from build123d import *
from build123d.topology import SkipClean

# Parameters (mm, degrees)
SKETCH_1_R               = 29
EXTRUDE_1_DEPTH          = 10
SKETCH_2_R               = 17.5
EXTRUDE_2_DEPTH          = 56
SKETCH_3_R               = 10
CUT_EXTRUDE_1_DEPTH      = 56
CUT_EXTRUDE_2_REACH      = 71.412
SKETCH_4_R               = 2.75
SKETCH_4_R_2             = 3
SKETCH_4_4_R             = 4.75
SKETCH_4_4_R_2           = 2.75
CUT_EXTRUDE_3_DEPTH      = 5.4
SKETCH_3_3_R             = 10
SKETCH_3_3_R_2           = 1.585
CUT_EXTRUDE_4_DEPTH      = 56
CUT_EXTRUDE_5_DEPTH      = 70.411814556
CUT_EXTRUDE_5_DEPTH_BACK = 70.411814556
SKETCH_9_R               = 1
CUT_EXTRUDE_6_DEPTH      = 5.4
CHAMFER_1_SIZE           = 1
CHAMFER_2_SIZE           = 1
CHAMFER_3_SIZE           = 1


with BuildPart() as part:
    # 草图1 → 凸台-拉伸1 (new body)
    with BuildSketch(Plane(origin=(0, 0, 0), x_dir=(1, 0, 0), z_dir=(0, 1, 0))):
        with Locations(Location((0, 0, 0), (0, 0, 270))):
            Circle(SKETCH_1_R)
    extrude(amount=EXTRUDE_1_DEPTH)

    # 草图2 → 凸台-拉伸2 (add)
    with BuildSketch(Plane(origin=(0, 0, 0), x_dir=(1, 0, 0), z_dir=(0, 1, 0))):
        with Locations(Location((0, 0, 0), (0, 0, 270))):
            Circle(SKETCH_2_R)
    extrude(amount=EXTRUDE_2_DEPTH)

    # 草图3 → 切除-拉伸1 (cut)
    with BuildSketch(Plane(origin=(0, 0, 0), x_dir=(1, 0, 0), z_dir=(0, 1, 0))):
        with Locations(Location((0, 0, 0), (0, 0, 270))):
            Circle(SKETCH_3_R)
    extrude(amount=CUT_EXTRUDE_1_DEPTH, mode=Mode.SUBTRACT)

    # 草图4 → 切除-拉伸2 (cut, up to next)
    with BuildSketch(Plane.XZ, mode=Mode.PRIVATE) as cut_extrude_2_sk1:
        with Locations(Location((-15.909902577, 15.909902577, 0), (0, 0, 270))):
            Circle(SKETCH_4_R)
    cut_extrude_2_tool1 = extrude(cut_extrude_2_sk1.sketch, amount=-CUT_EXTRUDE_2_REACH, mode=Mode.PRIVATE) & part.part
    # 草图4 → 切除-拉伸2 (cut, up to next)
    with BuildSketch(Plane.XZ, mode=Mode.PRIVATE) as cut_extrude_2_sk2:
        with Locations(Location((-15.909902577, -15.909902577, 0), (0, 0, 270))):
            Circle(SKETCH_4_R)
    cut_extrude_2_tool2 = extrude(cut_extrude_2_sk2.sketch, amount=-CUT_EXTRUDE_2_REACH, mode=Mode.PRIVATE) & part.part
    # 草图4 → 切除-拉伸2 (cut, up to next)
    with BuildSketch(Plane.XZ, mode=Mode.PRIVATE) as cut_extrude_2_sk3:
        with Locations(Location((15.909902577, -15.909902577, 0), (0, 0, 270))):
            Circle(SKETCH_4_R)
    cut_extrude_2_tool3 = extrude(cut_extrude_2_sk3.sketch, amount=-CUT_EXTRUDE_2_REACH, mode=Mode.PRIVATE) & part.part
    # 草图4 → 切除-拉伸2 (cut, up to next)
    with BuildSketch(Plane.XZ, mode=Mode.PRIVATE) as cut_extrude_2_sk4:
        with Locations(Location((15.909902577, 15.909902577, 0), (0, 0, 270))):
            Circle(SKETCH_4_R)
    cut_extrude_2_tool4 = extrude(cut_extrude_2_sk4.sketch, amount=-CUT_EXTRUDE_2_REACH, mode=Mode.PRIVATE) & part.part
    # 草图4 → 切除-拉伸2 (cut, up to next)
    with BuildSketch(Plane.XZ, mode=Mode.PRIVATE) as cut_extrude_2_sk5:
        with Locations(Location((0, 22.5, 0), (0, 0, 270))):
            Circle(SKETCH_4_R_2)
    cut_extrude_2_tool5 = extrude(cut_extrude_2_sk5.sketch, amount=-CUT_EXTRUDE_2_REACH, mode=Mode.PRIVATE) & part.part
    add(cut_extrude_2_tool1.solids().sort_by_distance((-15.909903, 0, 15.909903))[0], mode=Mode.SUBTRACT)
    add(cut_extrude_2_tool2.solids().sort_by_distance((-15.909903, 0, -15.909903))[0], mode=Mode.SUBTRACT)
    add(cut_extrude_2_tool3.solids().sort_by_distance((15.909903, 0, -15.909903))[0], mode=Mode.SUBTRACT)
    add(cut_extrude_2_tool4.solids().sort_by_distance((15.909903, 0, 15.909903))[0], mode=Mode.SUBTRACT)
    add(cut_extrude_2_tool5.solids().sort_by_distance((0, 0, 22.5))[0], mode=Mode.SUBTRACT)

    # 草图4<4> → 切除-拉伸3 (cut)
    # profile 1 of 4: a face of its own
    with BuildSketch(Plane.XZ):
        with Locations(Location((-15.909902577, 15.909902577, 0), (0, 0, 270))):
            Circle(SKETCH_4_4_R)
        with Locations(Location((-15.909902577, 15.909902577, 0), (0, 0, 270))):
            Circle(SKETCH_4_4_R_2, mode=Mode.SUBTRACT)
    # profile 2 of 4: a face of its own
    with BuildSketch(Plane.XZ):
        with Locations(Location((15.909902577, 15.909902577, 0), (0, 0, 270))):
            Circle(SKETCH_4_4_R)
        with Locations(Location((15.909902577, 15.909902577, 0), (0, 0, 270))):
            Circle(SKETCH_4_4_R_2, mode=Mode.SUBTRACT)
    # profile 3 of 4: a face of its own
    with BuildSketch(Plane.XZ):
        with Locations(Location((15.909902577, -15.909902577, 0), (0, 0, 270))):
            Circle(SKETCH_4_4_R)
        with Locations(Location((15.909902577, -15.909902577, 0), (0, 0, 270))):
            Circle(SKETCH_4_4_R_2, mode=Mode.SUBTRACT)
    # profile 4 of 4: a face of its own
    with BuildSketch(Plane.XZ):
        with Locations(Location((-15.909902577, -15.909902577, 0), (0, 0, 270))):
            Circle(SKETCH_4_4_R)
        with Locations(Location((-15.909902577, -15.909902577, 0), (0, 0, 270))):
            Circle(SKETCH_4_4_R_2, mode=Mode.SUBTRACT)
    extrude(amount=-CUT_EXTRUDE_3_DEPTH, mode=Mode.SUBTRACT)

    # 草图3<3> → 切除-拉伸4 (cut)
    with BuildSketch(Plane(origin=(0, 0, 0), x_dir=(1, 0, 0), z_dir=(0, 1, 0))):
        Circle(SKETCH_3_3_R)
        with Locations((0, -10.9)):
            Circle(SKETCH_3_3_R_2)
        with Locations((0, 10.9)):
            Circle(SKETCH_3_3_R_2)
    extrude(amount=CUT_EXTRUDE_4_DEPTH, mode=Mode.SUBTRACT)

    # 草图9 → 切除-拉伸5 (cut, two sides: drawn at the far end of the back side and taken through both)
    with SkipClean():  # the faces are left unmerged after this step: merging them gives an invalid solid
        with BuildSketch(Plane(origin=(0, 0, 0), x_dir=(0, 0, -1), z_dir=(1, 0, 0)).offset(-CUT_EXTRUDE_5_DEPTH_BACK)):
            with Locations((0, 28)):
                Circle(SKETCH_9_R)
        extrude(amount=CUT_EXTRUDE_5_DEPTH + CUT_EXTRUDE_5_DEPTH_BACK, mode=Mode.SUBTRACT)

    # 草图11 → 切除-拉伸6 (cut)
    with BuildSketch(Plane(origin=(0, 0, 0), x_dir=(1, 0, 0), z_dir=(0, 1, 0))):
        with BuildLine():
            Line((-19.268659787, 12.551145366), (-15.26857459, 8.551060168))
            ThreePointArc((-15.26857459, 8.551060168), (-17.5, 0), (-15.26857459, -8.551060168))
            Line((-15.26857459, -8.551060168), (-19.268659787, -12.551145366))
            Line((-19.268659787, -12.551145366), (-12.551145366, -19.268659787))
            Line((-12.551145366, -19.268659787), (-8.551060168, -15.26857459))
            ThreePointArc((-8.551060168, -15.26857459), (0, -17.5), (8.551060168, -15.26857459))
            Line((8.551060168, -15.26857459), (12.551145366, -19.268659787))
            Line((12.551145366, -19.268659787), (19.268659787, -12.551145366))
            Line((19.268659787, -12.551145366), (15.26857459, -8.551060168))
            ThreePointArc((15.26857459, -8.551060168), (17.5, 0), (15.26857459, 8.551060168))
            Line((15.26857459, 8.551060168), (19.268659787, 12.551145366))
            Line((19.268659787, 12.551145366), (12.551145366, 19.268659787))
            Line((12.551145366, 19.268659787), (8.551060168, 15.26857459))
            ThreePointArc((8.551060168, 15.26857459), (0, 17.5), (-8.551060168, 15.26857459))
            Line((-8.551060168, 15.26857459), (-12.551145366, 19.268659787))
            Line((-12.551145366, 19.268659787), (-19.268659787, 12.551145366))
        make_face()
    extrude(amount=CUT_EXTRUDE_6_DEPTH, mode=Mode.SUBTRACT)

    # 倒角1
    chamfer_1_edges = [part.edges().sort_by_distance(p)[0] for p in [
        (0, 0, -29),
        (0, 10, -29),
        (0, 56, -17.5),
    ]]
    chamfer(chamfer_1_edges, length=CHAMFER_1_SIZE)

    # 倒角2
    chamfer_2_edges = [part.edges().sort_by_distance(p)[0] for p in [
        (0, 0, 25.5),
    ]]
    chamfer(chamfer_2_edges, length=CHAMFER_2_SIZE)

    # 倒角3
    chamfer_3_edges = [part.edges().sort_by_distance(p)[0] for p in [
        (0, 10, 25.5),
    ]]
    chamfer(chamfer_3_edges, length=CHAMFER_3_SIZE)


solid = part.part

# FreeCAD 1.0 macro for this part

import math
import FreeCAD as App
import Part
import Sketcher

V = App.Vector


def edges_at(feature, points):
    """Names of the edges that pass closest to the given points."""
    edges = feature.Shape.Edges
    near = lambda p: min(range(len(edges)), key=lambda i: edges[i].distToShape(Part.Vertex(*p))[0])
    return sorted({f"Edge{near(p) + 1}" for p in points})

doc = App.newDocument("Part")
body = doc.addObject("PartDesign::Body", "Body")

# Sketch on XZ plane
sketch1 = body.newObject("Sketcher::SketchObject", "Sketch")
sketch1.AttachmentSupport = (doc.getObject("XZ_Plane"), [""])
sketch1.MapMode = "FlatFace"
sketch1.addGeometry(Part.Circle(V(0, 0, 0), V(0, 0, 1), 29), False)
sketch1.addConstraint([
    Sketcher.Constraint("Coincident", 0, 3, -1, 1),
    Sketcher.Constraint("Diameter", 0, 58.0),
])
pad1 = body.newObject("PartDesign::Pad", "Pad")
pad1.Profile = sketch1
pad1.Length = 10
pad1.Reversed = True

# Sketch on XZ plane
sketch2 = body.newObject("Sketcher::SketchObject", "Sketch001")
sketch2.AttachmentSupport = (doc.getObject("XZ_Plane"), [""])
sketch2.MapMode = "FlatFace"
sketch2.addGeometry(Part.Circle(V(0, 0, 0), V(0, 0, 1), 18), False)
sketch2.addConstraint([
    Sketcher.Constraint("Coincident", 0, 3, -1, 1),
    Sketcher.Constraint("Diameter", 0, 35.0),
])
pad2 = body.newObject("PartDesign::Pad", "Pad001")
pad2.Profile = sketch2
pad2.Length = 56
pad2.Reversed = True

# Sketch on XZ plane
sketch3 = body.newObject("Sketcher::SketchObject", "Sketch002")
sketch3.AttachmentSupport = (doc.getObject("XZ_Plane"), [""])
sketch3.MapMode = "FlatFace"
sketch3.addGeometry(Part.Circle(V(0, 0, 0), V(0, 0, 1), 10), False)
sketch3.addConstraint([
    Sketcher.Constraint("Coincident", 0, 3, -1, 1),
    Sketcher.Constraint("Diameter", 0, 20.0),
])
pocket1 = body.newObject("PartDesign::Pocket", "Pocket")
pocket1.Profile = sketch3
pocket1.Length = 56

# Sketch on XZ plane
sketch4 = body.newObject("Sketcher::SketchObject", "Sketch003")
sketch4.AttachmentSupport = (doc.getObject("XZ_Plane"), [""])
sketch4.MapMode = "FlatFace"
sketch4.addGeometry(Part.Circle(V(-15.9, 15.9, 0), V(0, 0, 1), 2.8), False)
sketch4.addConstraint([
    Sketcher.Constraint("Diameter", 0, 5.5),
    Sketcher.Constraint("DistanceX", 0, 3, -1, 1, 15.909903),
    Sketcher.Constraint("DistanceY", -1, 1, 0, 3, 15.909903),
])
pocket2 = body.newObject("PartDesign::Pocket", "Pocket001")
pocket2.Profile = sketch4
pocket2.Type = "UpToFirst"

# Sketch on XZ plane
sketch5 = body.newObject("Sketcher::SketchObject", "Sketch004")
sketch5.AttachmentSupport = (doc.getObject("XZ_Plane"), [""])
sketch5.MapMode = "FlatFace"
sketch5.addGeometry(Part.Circle(V(-15.9, -15.9, 0), V(0, 0, 1), 2.8), False)
sketch5.addConstraint([
    Sketcher.Constraint("Diameter", 0, 5.5),
    Sketcher.Constraint("DistanceX", 0, 3, -1, 1, 15.909903),
    Sketcher.Constraint("DistanceY", 0, 3, -1, 1, 15.909903),
])
pocket3 = body.newObject("PartDesign::Pocket", "Pocket002")
pocket3.Profile = sketch5
pocket3.Type = "UpToFirst"

# Sketch on XZ plane
sketch6 = body.newObject("Sketcher::SketchObject", "Sketch005")
sketch6.AttachmentSupport = (doc.getObject("XZ_Plane"), [""])
sketch6.MapMode = "FlatFace"
sketch6.addGeometry(Part.Circle(V(15.9, -15.9, 0), V(0, 0, 1), 2.8), False)
sketch6.addConstraint([
    Sketcher.Constraint("Diameter", 0, 5.5),
    Sketcher.Constraint("DistanceX", -1, 1, 0, 3, 15.909903),
    Sketcher.Constraint("DistanceY", 0, 3, -1, 1, 15.909903),
])
pocket4 = body.newObject("PartDesign::Pocket", "Pocket003")
pocket4.Profile = sketch6
pocket4.Type = "UpToFirst"

# Sketch on XZ plane
sketch7 = body.newObject("Sketcher::SketchObject", "Sketch006")
sketch7.AttachmentSupport = (doc.getObject("XZ_Plane"), [""])
sketch7.MapMode = "FlatFace"
sketch7.addGeometry(Part.Circle(V(15.9, 15.9, 0), V(0, 0, 1), 2.8), False)
sketch7.addConstraint([
    Sketcher.Constraint("Diameter", 0, 5.5),
    Sketcher.Constraint("DistanceX", -1, 1, 0, 3, 15.909903),
    Sketcher.Constraint("DistanceY", -1, 1, 0, 3, 15.909903),
])
pocket5 = body.newObject("PartDesign::Pocket", "Pocket004")
pocket5.Profile = sketch7
pocket5.Type = "UpToFirst"

# Sketch on XZ plane
sketch8 = body.newObject("Sketcher::SketchObject", "Sketch007")
sketch8.AttachmentSupport = (doc.getObject("XZ_Plane"), [""])
sketch8.MapMode = "FlatFace"
sketch8.addGeometry(Part.Circle(V(0, 22.5, 0), V(0, 0, 1), 3), False)
sketch8.addConstraint([
    Sketcher.Constraint("PointOnObject", 0, 3, -2),
    Sketcher.Constraint("Diameter", 0, 6.0),
    Sketcher.Constraint("DistanceY", -1, 1, 0, 3, 22.5),
])
pocket6 = body.newObject("PartDesign::Pocket", "Pocket005")
pocket6.Profile = sketch8
pocket6.Type = "UpToFirst"

# Sketch on XZ plane
sketch9 = body.newObject("Sketcher::SketchObject", "Sketch008")
sketch9.AttachmentSupport = (doc.getObject("XZ_Plane"), [""])
sketch9.MapMode = "FlatFace"
sketch9.addGeometry([
    Part.Circle(V(-15.9, 15.9, 0), V(0, 0, 1), 4.8),  # 0
    Part.Circle(V(-15.9, 15.9, 0), V(0, 0, 1), 2.8),  # 1
    Part.Circle(V(15.9, 15.9, 0), V(0, 0, 1), 4.8),  # 2
    Part.Circle(V(15.9, 15.9, 0), V(0, 0, 1), 2.8),  # 3
    Part.Circle(V(15.9, -15.9, 0), V(0, 0, 1), 4.8),  # 4
    Part.Circle(V(15.9, -15.9, 0), V(0, 0, 1), 2.8),  # 5
    Part.Circle(V(-15.9, -15.9, 0), V(0, 0, 1), 4.8),  # 6
    Part.Circle(V(-15.9, -15.9, 0), V(0, 0, 1), 2.8),  # 7
], False)
sketch9.addConstraint([
    Sketcher.Constraint("Coincident", 1, 3, 0, 3),
    Sketcher.Constraint("Coincident", 3, 3, 2, 3),
    Sketcher.Constraint("Coincident", 5, 3, 4, 3),
    Sketcher.Constraint("Coincident", 7, 3, 6, 3),
    Sketcher.Constraint("Equal", 0, 2),
    Sketcher.Constraint("Equal", 1, 3),
    Sketcher.Constraint("Equal", 2, 4),
    Sketcher.Constraint("Equal", 3, 5),
    Sketcher.Constraint("Equal", 4, 6),
    Sketcher.Constraint("Equal", 5, 7),
    Sketcher.Constraint("Symmetric", 0, 3, 4, 3, -1, 1),
    Sketcher.Constraint("Symmetric", 2, 3, 6, 3, -1, 1),
    Sketcher.Constraint("Symmetric", 0, 3, 2, 3, -2),
    Sketcher.Constraint("Diameter", 0, 9.5),
    Sketcher.Constraint("Diameter", 1, 5.5),
    Sketcher.Constraint("DistanceX", 0, 3, -1, 1, 15.909903),
    Sketcher.Constraint("DistanceY", -1, 1, 0, 3, 15.909903),
])
pocket7 = body.newObject("PartDesign::Pocket", "Pocket006")
pocket7.Profile = sketch9
pocket7.Length = 5.4

# Sketch on XZ plane
sketch10 = body.newObject("Sketcher::SketchObject", "Sketch009")
sketch10.AttachmentSupport = (doc.getObject("XZ_Plane"), [""])
sketch10.MapMode = "FlatFace"
sketch10.addGeometry([
    Part.ArcOfCircle(Part.Circle(V(0, 10.9, 0), V(0, 0, 1), 1.6), math.radians(-38), math.radians(218)),
    Part.ArcOfCircle(Part.Circle(V(0, 0, 0), V(0, 0, 1), 10), math.radians(-83), math.radians(83)),
    Part.ArcOfCircle(Part.Circle(V(0, -10.9, 0), V(0, 0, 1), 1.6), math.radians(142), math.radians(398)),
    Part.ArcOfCircle(Part.Circle(V(0, 0, 0), V(0, 0, 1), 10), math.radians(97), math.radians(263)),
], False)
sketch10.addConstraint([
    Sketcher.Constraint("Coincident", 0, 1, 1, 2),
    Sketcher.Constraint("Coincident", 1, 1, 2, 2),
    Sketcher.Constraint("Coincident", 2, 1, 3, 2),
    Sketcher.Constraint("Coincident", 3, 1, 0, 2),
    Sketcher.Constraint("Coincident", 1, 3, -1, 1),
    Sketcher.Constraint("Coincident", 3, 3, -1, 1),
    Sketcher.Constraint("Equal", 0, 2),
    Sketcher.Constraint("Equal", 1, 3),
    Sketcher.Constraint("Symmetric", 0, 3, 2, 3, -1, 1),
    Sketcher.Constraint("PointOnObject", 0, 3, -2),
    Sketcher.Constraint("Radius", 1, 10.0),
    Sketcher.Constraint("Radius", 0, 1.585),
    Sketcher.Constraint("DistanceY", -1, 1, 0, 3, 10.9),
])
pocket8 = body.newObject("PartDesign::Pocket", "Pocket007")
pocket8.Profile = sketch10
pocket8.Length = 56

# Sketch on YZ plane
sketch11 = body.newObject("Sketcher::SketchObject", "Sketch010")
sketch11.AttachmentSupport = (doc.getObject("YZ_Plane"), [""])
sketch11.MapMode = "FlatFace"
sketch11.addGeometry(Part.Circle(V(28, 0, 0), V(0, 0, 1), 1), False)
sketch11.addConstraint([
    Sketcher.Constraint("PointOnObject", 0, 3, -1),
    Sketcher.Constraint("Diameter", 0, 2.0),
    Sketcher.Constraint("DistanceX", -1, 1, 0, 3, 28.0),
])
pocket9 = body.newObject("PartDesign::Pocket", "Pocket008")
pocket9.Profile = sketch11
pocket9.Type = "ThroughAll"
pocket9.Midplane = True

# Sketch on XZ plane
sketch12 = body.newObject("Sketcher::SketchObject", "Sketch011")
sketch12.AttachmentSupport = (doc.getObject("XZ_Plane"), [""])
sketch12.MapMode = "FlatFace"
sketch12.addGeometry([
    Part.LineSegment(V(-19, -13, 0), V(-15, -9, 0)),  # 0
    Part.ArcOfCircle(Part.Circle(V(0, 0, 0), V(0, 0, 1), 18), math.radians(151), math.radians(209)),  # 1
    Part.LineSegment(V(-15, 9, 0), V(-19, 13, 0)),  # 2
    Part.LineSegment(V(-19, 13, 0), V(-13, 19, 0)),  # 3
    Part.LineSegment(V(-13, 19, 0), V(-9, 15, 0)),  # 4
    Part.ArcOfCircle(Part.Circle(V(0, 0, 0), V(0, 0, 1), 18), math.radians(61), math.radians(119)),  # 5
    Part.LineSegment(V(9, 15, 0), V(13, 19, 0)),  # 6
    Part.LineSegment(V(13, 19, 0), V(19, 13, 0)),  # 7
    Part.LineSegment(V(19, 13, 0), V(15, 9, 0)),  # 8
    Part.ArcOfCircle(Part.Circle(V(0, 0, 0), V(0, 0, 1), 18), math.radians(-29), math.radians(29)),  # 9
    Part.LineSegment(V(15, -9, 0), V(19, -13, 0)),  # 10
    Part.LineSegment(V(19, -13, 0), V(13, -19, 0)),  # 11
    Part.LineSegment(V(13, -19, 0), V(9, -15, 0)),  # 12
    Part.ArcOfCircle(Part.Circle(V(0, 0, 0), V(0, 0, 1), 18), math.radians(-119), math.radians(-61)),  # 13
    Part.LineSegment(V(-9, -15, 0), V(-13, -19, 0)),  # 14
    Part.LineSegment(V(-13, -19, 0), V(-19, -13, 0)),  # 15
], False)
sketch12.addConstraint([
    Sketcher.Constraint("Coincident", 0, 2, 1, 2),
    Sketcher.Constraint("Coincident", 1, 1, 2, 1),
    Sketcher.Constraint("Coincident", 2, 2, 3, 1),
    Sketcher.Constraint("Coincident", 3, 2, 4, 1),
    Sketcher.Constraint("Coincident", 4, 2, 5, 2),
    Sketcher.Constraint("Coincident", 5, 1, 6, 1),
    Sketcher.Constraint("Coincident", 6, 2, 7, 1),
    Sketcher.Constraint("Coincident", 7, 2, 8, 1),
    Sketcher.Constraint("Coincident", 8, 2, 9, 2),
    Sketcher.Constraint("Coincident", 9, 1, 10, 1),
    Sketcher.Constraint("Coincident", 10, 2, 11, 1),
    Sketcher.Constraint("Coincident", 11, 2, 12, 1),
    Sketcher.Constraint("Coincident", 12, 2, 13, 2),
    Sketcher.Constraint("Coincident", 13, 1, 14, 1),
    Sketcher.Constraint("Coincident", 14, 2, 15, 1),
    Sketcher.Constraint("Coincident", 15, 2, 0, 1),
    Sketcher.Constraint("Coincident", 1, 3, -1, 1),
    Sketcher.Constraint("Coincident", 5, 3, -1, 1),
    Sketcher.Constraint("Coincident", 9, 3, -1, 1),
    Sketcher.Constraint("Coincident", 13, 3, -1, 1),
    Sketcher.Constraint("Equal", 1, 5),
    Sketcher.Constraint("Equal", 5, 9),
    Sketcher.Constraint("Equal", 9, 13),
    Sketcher.Constraint("Symmetric", 2, 2, 10, 2, -1, 1),
    Sketcher.Constraint("Symmetric", 3, 2, 11, 2, -1, 1),
    Sketcher.Constraint("Symmetric", 6, 2, 14, 2, -1, 1),
    Sketcher.Constraint("Symmetric", 7, 2, 15, 2, -1, 1),
    Sketcher.Constraint("Symmetric", 3, 2, 6, 2, -2),
    Sketcher.Constraint("Symmetric", 2, 2, 7, 2, -2),
    Sketcher.Constraint("Perpendicular", 0, 2),
    Sketcher.Constraint("Perpendicular", 2, 3),
    Sketcher.Constraint("Perpendicular", 3, 4),
    Sketcher.Constraint("Perpendicular", 4, 6),
    Sketcher.Constraint("Perpendicular", 6, 7),
    Sketcher.Constraint("Perpendicular", 7, 8),
    Sketcher.Constraint("Perpendicular", 8, 10),
    Sketcher.Constraint("Perpendicular", 11, 12),
    Sketcher.Constraint("Perpendicular", 12, 14),
    Sketcher.Constraint("Equal", 2, 4),
    Sketcher.Constraint("Radius", 1, 17.5),
    Sketcher.Constraint("Distance", 3, 9.5),
    Sketcher.Constraint("DistanceY", 1, 1, 3, 2, 10.7176),
])
pocket10 = body.newObject("PartDesign::Pocket", "Pocket009")
pocket10.Profile = sketch12
pocket10.Length = 5.4
doc.recompute()

chamfer = body.newObject("PartDesign::Chamfer", "Chamfer")
chamfer.Base = (pocket10, edges_at(pocket10, [(0, 0, -29), (0, 10, -29), (0, 56, -17.5)]))
chamfer.Size = 1
doc.recompute()

chamfer2 = body.newObject("PartDesign::Chamfer", "Chamfer001")
chamfer2.Base = (chamfer, edges_at(chamfer, [(0, 0, 25.5)]))
chamfer2.Size = 1
doc.recompute()

chamfer3 = body.newObject("PartDesign::Chamfer", "Chamfer002")
chamfer3.Base = (chamfer2, edges_at(chamfer2, [(0, 10, 25.5)]))
chamfer3.Size = 1

doc.recompute()
